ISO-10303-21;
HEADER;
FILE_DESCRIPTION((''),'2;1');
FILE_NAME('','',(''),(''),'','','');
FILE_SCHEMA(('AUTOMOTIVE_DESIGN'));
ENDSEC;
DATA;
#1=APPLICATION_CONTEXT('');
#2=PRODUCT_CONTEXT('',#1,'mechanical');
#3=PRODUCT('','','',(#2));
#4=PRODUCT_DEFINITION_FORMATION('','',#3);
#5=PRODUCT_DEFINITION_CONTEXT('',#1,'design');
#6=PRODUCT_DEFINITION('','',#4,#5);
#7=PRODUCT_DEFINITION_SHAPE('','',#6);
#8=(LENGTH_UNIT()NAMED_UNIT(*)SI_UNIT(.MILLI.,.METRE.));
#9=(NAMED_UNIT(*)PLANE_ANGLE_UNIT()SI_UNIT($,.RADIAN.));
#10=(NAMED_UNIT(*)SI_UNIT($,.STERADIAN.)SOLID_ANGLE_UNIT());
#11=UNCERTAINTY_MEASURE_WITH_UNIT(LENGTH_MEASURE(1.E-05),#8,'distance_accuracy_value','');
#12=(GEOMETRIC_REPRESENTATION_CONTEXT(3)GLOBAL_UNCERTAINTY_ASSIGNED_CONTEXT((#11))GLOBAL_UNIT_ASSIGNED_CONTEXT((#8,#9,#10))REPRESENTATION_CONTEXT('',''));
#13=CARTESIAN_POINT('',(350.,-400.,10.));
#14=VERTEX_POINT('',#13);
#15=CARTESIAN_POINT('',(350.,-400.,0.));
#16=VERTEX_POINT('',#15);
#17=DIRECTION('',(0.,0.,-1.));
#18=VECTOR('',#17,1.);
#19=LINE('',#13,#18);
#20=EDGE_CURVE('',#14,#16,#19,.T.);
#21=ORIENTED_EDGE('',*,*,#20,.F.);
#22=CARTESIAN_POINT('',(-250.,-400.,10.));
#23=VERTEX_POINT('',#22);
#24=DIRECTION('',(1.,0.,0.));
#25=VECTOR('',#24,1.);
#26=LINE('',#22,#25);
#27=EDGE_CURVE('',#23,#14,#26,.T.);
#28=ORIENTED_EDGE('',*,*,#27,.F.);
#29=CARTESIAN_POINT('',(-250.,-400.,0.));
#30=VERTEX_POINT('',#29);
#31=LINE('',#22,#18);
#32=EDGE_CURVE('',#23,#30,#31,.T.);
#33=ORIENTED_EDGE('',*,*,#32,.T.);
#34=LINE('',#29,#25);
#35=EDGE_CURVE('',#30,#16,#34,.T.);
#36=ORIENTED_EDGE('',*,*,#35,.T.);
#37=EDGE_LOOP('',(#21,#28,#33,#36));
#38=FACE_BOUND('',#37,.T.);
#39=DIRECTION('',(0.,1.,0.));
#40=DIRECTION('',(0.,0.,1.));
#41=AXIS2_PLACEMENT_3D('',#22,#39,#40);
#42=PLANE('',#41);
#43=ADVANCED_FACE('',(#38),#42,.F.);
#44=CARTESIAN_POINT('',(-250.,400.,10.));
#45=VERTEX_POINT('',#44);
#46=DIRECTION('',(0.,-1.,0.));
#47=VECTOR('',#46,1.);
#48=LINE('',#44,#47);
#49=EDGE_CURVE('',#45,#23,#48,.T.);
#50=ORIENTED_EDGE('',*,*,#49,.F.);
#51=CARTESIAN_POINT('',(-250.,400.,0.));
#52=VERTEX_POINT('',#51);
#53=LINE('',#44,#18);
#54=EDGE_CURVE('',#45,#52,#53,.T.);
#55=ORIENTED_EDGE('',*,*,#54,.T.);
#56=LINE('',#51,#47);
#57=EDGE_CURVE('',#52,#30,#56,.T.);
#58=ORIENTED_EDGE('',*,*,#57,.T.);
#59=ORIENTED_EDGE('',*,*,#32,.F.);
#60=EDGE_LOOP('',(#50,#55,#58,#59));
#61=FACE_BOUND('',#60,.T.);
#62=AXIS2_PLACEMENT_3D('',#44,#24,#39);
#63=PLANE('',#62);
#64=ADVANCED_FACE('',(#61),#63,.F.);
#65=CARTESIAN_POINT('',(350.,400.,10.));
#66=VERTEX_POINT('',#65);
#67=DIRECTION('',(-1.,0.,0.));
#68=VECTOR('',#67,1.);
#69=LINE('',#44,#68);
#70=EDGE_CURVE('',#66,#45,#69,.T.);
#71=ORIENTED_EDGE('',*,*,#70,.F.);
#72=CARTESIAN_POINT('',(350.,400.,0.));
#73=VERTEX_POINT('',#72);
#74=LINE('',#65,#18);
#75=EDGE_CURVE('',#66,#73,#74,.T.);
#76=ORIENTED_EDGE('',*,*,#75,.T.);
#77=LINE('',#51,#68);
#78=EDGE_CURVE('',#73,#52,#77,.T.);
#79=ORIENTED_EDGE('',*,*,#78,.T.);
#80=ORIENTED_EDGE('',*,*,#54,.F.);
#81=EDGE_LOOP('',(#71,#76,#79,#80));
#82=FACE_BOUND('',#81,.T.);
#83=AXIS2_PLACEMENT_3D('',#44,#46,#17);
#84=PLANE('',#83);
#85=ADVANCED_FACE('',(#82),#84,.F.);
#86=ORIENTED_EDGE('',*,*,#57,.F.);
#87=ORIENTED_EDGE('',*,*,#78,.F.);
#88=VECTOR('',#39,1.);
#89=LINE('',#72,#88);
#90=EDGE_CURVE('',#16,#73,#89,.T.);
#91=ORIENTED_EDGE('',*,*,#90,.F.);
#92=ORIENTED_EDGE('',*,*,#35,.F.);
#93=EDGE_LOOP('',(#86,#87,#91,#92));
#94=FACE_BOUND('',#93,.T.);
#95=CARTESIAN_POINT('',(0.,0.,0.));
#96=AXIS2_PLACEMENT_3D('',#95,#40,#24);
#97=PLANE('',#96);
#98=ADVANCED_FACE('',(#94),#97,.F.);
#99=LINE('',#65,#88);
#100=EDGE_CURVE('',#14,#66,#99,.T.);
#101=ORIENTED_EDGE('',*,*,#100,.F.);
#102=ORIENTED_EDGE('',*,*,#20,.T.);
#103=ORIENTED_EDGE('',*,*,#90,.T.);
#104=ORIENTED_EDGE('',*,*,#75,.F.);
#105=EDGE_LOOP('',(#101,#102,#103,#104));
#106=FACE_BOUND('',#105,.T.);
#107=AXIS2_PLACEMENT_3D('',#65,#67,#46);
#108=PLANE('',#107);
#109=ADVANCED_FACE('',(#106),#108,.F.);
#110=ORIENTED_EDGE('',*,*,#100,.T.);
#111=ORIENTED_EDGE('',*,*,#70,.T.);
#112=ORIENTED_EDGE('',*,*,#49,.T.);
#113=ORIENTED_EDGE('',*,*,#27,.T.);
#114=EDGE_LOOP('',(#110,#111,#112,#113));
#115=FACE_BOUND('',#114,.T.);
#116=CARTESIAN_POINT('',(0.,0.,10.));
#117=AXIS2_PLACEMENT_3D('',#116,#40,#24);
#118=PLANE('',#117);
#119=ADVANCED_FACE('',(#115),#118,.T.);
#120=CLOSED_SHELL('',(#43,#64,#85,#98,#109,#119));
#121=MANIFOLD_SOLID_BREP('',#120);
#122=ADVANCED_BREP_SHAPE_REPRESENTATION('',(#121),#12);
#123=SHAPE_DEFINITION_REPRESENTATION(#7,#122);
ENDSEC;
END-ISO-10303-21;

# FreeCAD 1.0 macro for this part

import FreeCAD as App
import Part
import Sketcher
from FreeCAD import Vector
Q = App.Units.Quantity


def add_polygon(sketch, points):
    """Adds a closed chain of lines whose ends are joined by coincident constraints."""
    first, n = sketch.GeometryCount, len(points)
    for a, b in zip(points, points[1:] + points[:1]):
        sketch.addGeometry(Part.LineSegment(App.Vector(*a, 0), App.Vector(*b, 0)), False)
    for i in range(n):
        sketch.addConstraint(Sketcher.Constraint("Coincident", first + i, 2, first + (i + 1) % n, 1))

doc = App.newDocument("Part")
params = doc.addObject("Spreadsheet::Sheet", "Params")
for row, (alias, value) in enumerate([
    ("sketch1_width", "600 mm"),
    ("sketch1_height", "800 mm"),
    ("pad1_length", "10 mm"),
], start=1):
    params.set(f"A{row}", alias)
    params.set(f"B{row}", "=" + value)
    params.setAlias(f"B{row}", alias)

body = doc.addObject("PartDesign::Body", "Body")

# Sketch on XY plane
sketch1 = doc.addObject("Sketcher::SketchObject", "Sketch")
body.addObject(sketch1)
sketch1.AttachmentSupport = (doc.XY_Plane, [""])
sketch1.MapMode = "FlatFace"
add_polygon(sketch1, [(-250, 400), (-250, -400), (350, -400), (350, 400)])  # lines 0-3
sketch1.addConstraint(Sketcher.Constraint("Vertical", 0))
sketch1.addConstraint(Sketcher.Constraint("Horizontal", 1))
sketch1.addConstraint(Sketcher.Constraint("Vertical", 2))
sketch1.addConstraint(Sketcher.Constraint("Horizontal", 3))
sketch1.addConstraint(Sketcher.Constraint("DistanceX", 1, 1, 1, 2, Q("600 mm")))
sketch1.addConstraint(Sketcher.Constraint("DistanceY", 0, 2, 0, 1, Q("800 mm")))
sketch1.addConstraint(Sketcher.Constraint("DistanceX", 0, 2, -1, 1, Q("250 mm")))
sketch1.addConstraint(Sketcher.Constraint("DistanceY", 0, 2, -1, 1, Q("400 mm")))
sketch1.setExpression("Constraints[8]", "Params.sketch1_width")
sketch1.setExpression("Constraints[9]", "Params.sketch1_height")
pad1 = doc.addObject("PartDesign::Pad", "Pad")
body.addObject(pad1)
pad1.Profile = sketch1
pad1.setExpression("Length", "Params.pad1_length")

doc.recompute()
